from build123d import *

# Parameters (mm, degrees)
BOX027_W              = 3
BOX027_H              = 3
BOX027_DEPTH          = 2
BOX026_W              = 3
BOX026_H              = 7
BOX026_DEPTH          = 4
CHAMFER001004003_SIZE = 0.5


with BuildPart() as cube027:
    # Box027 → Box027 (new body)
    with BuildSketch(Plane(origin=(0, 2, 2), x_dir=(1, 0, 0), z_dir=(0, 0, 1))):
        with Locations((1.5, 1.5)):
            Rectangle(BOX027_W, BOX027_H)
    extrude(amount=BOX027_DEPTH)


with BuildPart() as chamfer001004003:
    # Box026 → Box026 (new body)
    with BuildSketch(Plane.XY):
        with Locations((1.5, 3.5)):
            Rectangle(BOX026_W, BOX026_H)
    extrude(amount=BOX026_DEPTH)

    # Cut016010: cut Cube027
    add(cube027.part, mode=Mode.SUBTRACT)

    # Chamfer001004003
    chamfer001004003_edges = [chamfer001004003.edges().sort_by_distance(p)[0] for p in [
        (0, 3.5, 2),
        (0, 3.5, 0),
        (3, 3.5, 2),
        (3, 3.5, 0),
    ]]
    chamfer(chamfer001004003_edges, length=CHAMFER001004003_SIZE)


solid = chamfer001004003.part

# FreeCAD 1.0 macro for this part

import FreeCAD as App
import Part
import Sketcher
from FreeCAD import Vector


def edges_at(feature, points):
    """Names of the edges that pass closest to the given points."""
    edges = feature.Shape.Edges
    near = lambda p: min(range(len(edges)), key=lambda i: edges[i].distToShape(Part.Vertex(*p))[0])
    return sorted({f"Edge{near(p) + 1}" for p in points})


def add_polygon(sketch, points):
    """Adds a closed chain of lines whose ends are joined by coincident constraints."""
    first, n = sketch.GeometryCount, len(points)
    for a, b in zip(points, points[1:] + points[:1]):
        sketch.addGeometry(Part.LineSegment(App.Vector(*a, 0), App.Vector(*b, 0)), False)
    for i in range(n):
        sketch.addConstraint(Sketcher.Constraint("Coincident", first + i, 2, first + (i + 1) % n, 1))

doc = App.newDocument("Part")
body = doc.addObject("PartDesign::Body", "Body")

# Sketch on XY plane
sketch1 = doc.addObject("Sketcher::SketchObject", "Sketch")
body.addObject(sketch1)
sketch1.AttachmentSupport = (doc.XY_Plane, [""])
sketch1.MapMode = "FlatFace"
sketch1.AttachmentOffset = App.Placement(Vector(0, 0, 2), App.Rotation())
add_polygon(sketch1, [(0, 5), (0, 2), (3, 2), (3, 5)])  # lines 0-3
sketch1.addConstraint(Sketcher.Constraint("Vertical", 0))
sketch1.addConstraint(Sketcher.Constraint("Horizontal", 1))
sketch1.addConstraint(Sketcher.Constraint("Vertical", 2))
sketch1.addConstraint(Sketcher.Constraint("Horizontal", 3))
sketch1.addConstraint(Sketcher.Constraint("PointOnObject", 0, 2, -2))
sketch1.addConstraint(Sketcher.Constraint("Equal", 3, 0))
sketch1.addConstraint(Sketcher.Constraint("DistanceX", 1, 1, 1, 2, 3.0))
sketch1.addConstraint(Sketcher.Constraint("DistanceY", -1, 1, 0, 2, 2.0))
pad1 = doc.addObject("PartDesign::Pad", "Pad")
body.addObject(pad1)
pad1.Profile = sketch1
pad1.Length = 2
body2 = doc.addObject("PartDesign::Body", "Body001")

# Sketch on XY plane
sketch2 = doc.addObject("Sketcher::SketchObject", "Sketch001")
body2.addObject(sketch2)
sketch2.AttachmentSupport = (doc.getObject("XY_Plane001"), [""])
sketch2.MapMode = "FlatFace"
add_polygon(sketch2, [(0, 7), (0, 0), (3, 0), (3, 7)])  # lines 0-3
sketch2.addConstraint(Sketcher.Constraint("Vertical", 0))
sketch2.addConstraint(Sketcher.Constraint("Horizontal", 1))
sketch2.addConstraint(Sketcher.Constraint("Vertical", 2))
sketch2.addConstraint(Sketcher.Constraint("Horizontal", 3))
sketch2.addConstraint(Sketcher.Constraint("Coincident", 0, 2, -1, 1))
sketch2.addConstraint(Sketcher.Constraint("DistanceX", 1, 1, 1, 2, 3.0))
sketch2.addConstraint(Sketcher.Constraint("DistanceY", 0, 2, 0, 1, 7.0))
pad2 = doc.addObject("PartDesign::Pad", "Pad001")
body2.addObject(pad2)
pad2.Profile = sketch2
pad2.Length = 4
doc.recompute()

boolean = doc.addObject("PartDesign::Boolean", "Boolean")
body2.addObject(boolean)
boolean.Type = "Cut"
boolean.addObjects([body])
doc.recompute()

chamfer = doc.addObject("PartDesign::Chamfer", "Chamfer")
body2.addObject(chamfer)
chamfer.Base = (boolean, edges_at(boolean, [
    (0, 3.5, 2),
    (0, 3.5, 0),
    (3, 3.5, 2),
    (3, 3.5, 0),
]))
chamfer.Size = 0.5

doc.recompute()
